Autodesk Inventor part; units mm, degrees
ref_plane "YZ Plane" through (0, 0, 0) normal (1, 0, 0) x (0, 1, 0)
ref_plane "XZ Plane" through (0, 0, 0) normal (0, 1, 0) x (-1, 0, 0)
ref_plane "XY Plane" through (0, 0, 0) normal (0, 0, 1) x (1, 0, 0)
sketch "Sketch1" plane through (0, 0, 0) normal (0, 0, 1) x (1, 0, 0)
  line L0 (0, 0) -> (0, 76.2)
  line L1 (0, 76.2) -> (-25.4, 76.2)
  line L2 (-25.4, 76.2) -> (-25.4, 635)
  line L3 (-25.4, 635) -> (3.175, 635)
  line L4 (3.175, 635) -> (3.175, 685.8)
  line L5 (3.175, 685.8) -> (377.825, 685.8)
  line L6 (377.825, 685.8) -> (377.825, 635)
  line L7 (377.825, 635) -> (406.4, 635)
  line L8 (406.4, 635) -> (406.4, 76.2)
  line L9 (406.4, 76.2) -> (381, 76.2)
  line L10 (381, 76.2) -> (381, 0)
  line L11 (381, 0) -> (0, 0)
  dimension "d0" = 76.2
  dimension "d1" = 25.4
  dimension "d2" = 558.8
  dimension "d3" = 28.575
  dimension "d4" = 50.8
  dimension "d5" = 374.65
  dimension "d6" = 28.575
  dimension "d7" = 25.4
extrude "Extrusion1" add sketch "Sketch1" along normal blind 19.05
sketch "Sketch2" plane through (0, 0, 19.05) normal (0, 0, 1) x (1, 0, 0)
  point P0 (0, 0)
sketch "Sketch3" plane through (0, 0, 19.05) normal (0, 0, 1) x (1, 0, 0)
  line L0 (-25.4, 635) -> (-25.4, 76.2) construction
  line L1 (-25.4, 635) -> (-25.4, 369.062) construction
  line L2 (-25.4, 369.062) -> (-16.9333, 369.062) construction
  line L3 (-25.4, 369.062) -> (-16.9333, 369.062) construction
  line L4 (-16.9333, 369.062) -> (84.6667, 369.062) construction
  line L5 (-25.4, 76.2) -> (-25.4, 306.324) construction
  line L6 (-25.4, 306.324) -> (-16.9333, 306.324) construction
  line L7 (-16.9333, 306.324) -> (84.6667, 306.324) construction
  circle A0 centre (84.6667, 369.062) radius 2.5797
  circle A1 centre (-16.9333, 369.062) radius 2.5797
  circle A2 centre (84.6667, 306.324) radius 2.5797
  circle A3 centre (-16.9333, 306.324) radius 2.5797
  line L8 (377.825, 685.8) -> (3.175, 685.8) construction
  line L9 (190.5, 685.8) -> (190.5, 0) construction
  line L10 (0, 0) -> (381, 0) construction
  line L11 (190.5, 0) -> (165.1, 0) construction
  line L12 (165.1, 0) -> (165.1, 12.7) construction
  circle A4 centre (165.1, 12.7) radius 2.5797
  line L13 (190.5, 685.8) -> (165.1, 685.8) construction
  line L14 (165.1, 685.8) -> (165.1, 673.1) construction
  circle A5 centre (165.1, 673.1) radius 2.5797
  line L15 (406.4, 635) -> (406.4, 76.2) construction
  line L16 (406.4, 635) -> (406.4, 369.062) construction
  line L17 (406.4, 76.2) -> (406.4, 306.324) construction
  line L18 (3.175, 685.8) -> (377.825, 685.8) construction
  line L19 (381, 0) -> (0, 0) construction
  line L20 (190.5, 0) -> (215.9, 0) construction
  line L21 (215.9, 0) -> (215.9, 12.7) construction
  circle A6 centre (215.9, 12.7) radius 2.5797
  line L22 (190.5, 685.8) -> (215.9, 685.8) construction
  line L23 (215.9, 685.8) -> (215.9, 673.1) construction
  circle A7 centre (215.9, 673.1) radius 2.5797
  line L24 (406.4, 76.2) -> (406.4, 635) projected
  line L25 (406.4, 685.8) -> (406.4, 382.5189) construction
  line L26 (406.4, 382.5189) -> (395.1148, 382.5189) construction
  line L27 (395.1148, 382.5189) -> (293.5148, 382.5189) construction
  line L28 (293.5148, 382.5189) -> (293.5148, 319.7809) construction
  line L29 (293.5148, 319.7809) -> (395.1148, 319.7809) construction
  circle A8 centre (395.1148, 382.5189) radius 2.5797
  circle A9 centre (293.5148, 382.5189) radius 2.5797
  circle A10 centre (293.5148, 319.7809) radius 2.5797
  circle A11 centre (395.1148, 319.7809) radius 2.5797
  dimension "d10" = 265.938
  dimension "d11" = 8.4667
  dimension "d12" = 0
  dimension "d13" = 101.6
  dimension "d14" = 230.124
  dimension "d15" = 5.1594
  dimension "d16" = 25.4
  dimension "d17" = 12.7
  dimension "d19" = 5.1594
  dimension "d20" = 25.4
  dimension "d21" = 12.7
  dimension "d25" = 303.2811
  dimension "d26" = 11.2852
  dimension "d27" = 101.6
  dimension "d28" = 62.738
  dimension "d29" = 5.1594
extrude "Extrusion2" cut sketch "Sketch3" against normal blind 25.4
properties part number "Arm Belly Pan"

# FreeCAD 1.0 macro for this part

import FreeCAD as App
import Part
import Sketcher
Q = App.Units.Quantity


def add_polygon(sketch, points):
    """Adds a closed chain of lines whose ends are joined by coincident constraints."""
    first, n = sketch.GeometryCount, len(points)
    for a, b in zip(points, points[1:] + points[:1]):
        sketch.addGeometry(Part.LineSegment(App.Vector(*a, 0), App.Vector(*b, 0)), False)
    for i in range(n):
        sketch.addConstraint(Sketcher.Constraint("Coincident", first + i, 2, first + (i + 1) % n, 1))

doc = App.newDocument("Part")
params = doc.addObject("Spreadsheet::Sheet", "Params")
for row, (alias, value) in enumerate([
    ("sketch1_width", "1 in"),
    ("sketch1_height", "3 in"),
    ("sketch1_height2", "22 in"),
    ("sketch1_height3", "2 in"),
    ("sketch1_width2", "14.75 in"),
    ("pad1_length", "0.75 in"),
    ("sketch2_diameter", "0.203126 in"),
    ("pocket1_length", "1 in"),
], start=1):
    params.set(f"A{row}", alias)
    params.set(f"B{row}", "=" + value)
    params.setAlias(f"B{row}", alias)

body = doc.addObject("PartDesign::Body", "Body")

sketch1 = body.newObject("Sketcher::SketchObject", "Sketch")
sketch1.AttachmentSupport = (doc.getObject("XY_Plane"), [""])
sketch1.MapMode = "FlatFace"
add_polygon(sketch1, [(0, 76), (0, 0), (381, 0), (381, 76), (406, 76), (406, 635), (378, 635), (378, 686), (3, 686), (3, 635), (-25, 635), (-25, 76)])
sketch1.addConstraint(Sketcher.Constraint("Vertical", 0))
sketch1.addConstraint(Sketcher.Constraint("Horizontal", 1))
sketch1.addConstraint(Sketcher.Constraint("Vertical", 2))
sketch1.addConstraint(Sketcher.Constraint("Horizontal", 3))
sketch1.addConstraint(Sketcher.Constraint("Vertical", 4))
sketch1.addConstraint(Sketcher.Constraint("Horizontal", 5))
sketch1.addConstraint(Sketcher.Constraint("Vertical", 6))
sketch1.addConstraint(Sketcher.Constraint("Horizontal", 7))
sketch1.addConstraint(Sketcher.Constraint("Vertical", 8))
sketch1.addConstraint(Sketcher.Constraint("Horizontal", 9))
sketch1.addConstraint(Sketcher.Constraint("Vertical", 10))
sketch1.addConstraint(Sketcher.Constraint("Horizontal", 11))
sketch1.addConstraint(Sketcher.Constraint("Coincident", 0, 2, -1, 1))
sketch1.addConstraint(Sketcher.Constraint("Horizontal", 5, 2, 8, 2))
sketch1.addConstraint(Sketcher.Constraint("Horizontal", 3, 2, 10, 2))
sketch1.addConstraint(Sketcher.Constraint("Equal", 5, 9))
sketch1.addConstraint(Sketcher.Constraint("Equal", 3, 11))
sketch1.addConstraint(Sketcher.Constraint("DistanceX", 3, 1, 3, 2, Q("1 in")))
sketch1.addConstraint(Sketcher.Constraint("DistanceY", 0, 2, 0, 1, Q("3 in")))
sketch1.addConstraint(Sketcher.Constraint("DistanceY", 4, 1, 4, 2, Q("22 in")))
sketch1.addConstraint(Sketcher.Constraint("DistanceY", 6, 1, 6, 2, Q("2 in")))
sketch1.addConstraint(Sketcher.Constraint("DistanceX", 7, 2, 7, 1, Q("14.75 in")))
sketch1.addConstraint(Sketcher.Constraint("DistanceX", 1, 1, 1, 2, Q("15 in")))
sketch1.setExpression("Constraints[29]", "Params.sketch1_width")
sketch1.setExpression("Constraints[30]", "Params.sketch1_height")
sketch1.setExpression("Constraints[31]", "Params.sketch1_height2")
sketch1.setExpression("Constraints[32]", "Params.sketch1_height3")
sketch1.setExpression("Constraints[33]", "Params.sketch1_width2")
pad1 = body.newObject("PartDesign::Pad", "Pad")
pad1.Profile = sketch1
pad1.setExpression("Length", "Params.pad1_length")

sketch2 = body.newObject("Sketcher::SketchObject", "Sketch001")
sketch2.AttachmentSupport = (doc.getObject("XY_Plane"), [""])
sketch2.MapMode = "FlatFace"
sketch2.AttachmentOffset = App.Placement(App.Vector(0, 0, 0.75 * 25.4), App.Rotation())
sketch2.addGeometry(Part.Circle(App.Vector(84.7, 369.1, 0), App.Vector(0, 0, 1), 2.6), False)
sketch2.addGeometry(Part.Circle(App.Vector(-16.9, 369.1, 0), App.Vector(0, 0, 1), 2.6), False)
sketch2.addGeometry(Part.Circle(App.Vector(84.7, 306.3, 0), App.Vector(0, 0, 1), 2.6), False)
sketch2.addGeometry(Part.Circle(App.Vector(-16.9, 306.3, 0), App.Vector(0, 0, 1), 2.6), False)
sketch2.addGeometry(Part.Circle(App.Vector(165.1, 12.7, 0), App.Vector(0, 0, 1), 2.6), False)
sketch2.addGeometry(Part.Circle(App.Vector(165.1, 673.1, 0), App.Vector(0, 0, 1), 2.6), False)
sketch2.addGeometry(Part.Circle(App.Vector(215.9, 12.7, 0), App.Vector(0, 0, 1), 2.6), False)
sketch2.addGeometry(Part.Circle(App.Vector(215.9, 673.1, 0), App.Vector(0, 0, 1), 2.6), False)
sketch2.addGeometry(Part.Circle(App.Vector(395.1, 382.5, 0), App.Vector(0, 0, 1), 2.6), False)
sketch2.addGeometry(Part.Circle(App.Vector(293.5, 382.5, 0), App.Vector(0, 0, 1), 2.6), False)
sketch2.addGeometry(Part.Circle(App.Vector(293.5, 319.8, 0), App.Vector(0, 0, 1), 2.6), False)
sketch2.addGeometry(Part.Circle(App.Vector(395.1, 319.8, 0), App.Vector(0, 0, 1), 2.6), False)
sketch2.addConstraint(Sketcher.Constraint("Equal", 0, 1))
sketch2.addConstraint(Sketcher.Constraint("Equal", 1, 2))
sketch2.addConstraint(Sketcher.Constraint("Equal", 2, 3))
sketch2.addConstraint(Sketcher.Constraint("Equal", 3, 4))
sketch2.addConstraint(Sketcher.Constraint("Equal", 4, 5))
sketch2.addConstraint(Sketcher.Constraint("Equal", 5, 6))
sketch2.addConstraint(Sketcher.Constraint("Equal", 6, 7))
sketch2.addConstraint(Sketcher.Constraint("Equal", 7, 8))
sketch2.addConstraint(Sketcher.Constraint("Equal", 8, 9))
sketch2.addConstraint(Sketcher.Constraint("Equal", 9, 10))
sketch2.addConstraint(Sketcher.Constraint("Equal", 10, 11))
sketch2.addConstraint(Sketcher.Constraint("Horizontal", 0, 3, 1, 3))
sketch2.addConstraint(Sketcher.Constraint("Horizontal", 2, 3, 3, 3))
sketch2.addConstraint(Sketcher.Constraint("Horizontal", 4, 3, 6, 3))
sketch2.addConstraint(Sketcher.Constraint("Horizontal", 5, 3, 7, 3))
sketch2.addConstraint(Sketcher.Constraint("Horizontal", 8, 3, 9, 3))
sketch2.addConstraint(Sketcher.Constraint("Horizontal", 10, 3, 11, 3))
sketch2.addConstraint(Sketcher.Constraint("Vertical", 0, 3, 2, 3))
sketch2.addConstraint(Sketcher.Constraint("Vertical", 1, 3, 3, 3))
sketch2.addConstraint(Sketcher.Constraint("Vertical", 4, 3, 5, 3))
sketch2.addConstraint(Sketcher.Constraint("Vertical", 6, 3, 7, 3))
sketch2.addConstraint(Sketcher.Constraint("Vertical", 9, 3, 10, 3))
sketch2.addConstraint(Sketcher.Constraint("Vertical", 8, 3, 11, 3))
sketch2.addConstraint(Sketcher.Constraint("Diameter", 0, Q("0.203126 in")))
sketch2.addConstraint(Sketcher.Constraint("DistanceX", 1, 3, 0, 3, Q("4 in")))
sketch2.addConstraint(Sketcher.Constraint("DistanceX", 9, 3, 8, 3, Q("4 in")))
sketch2.addConstraint(Sketcher.Constraint("DistanceY", -1, 1, 4, 3, Q("0.5 in")))
sketch2.addConstraint(Sketcher.Constraint("DistanceY", 2, 3, 0, 3, Q("2.47 in")))
sketch2.addConstraint(Sketcher.Constraint("DistanceY", 10, 3, 9, 3, Q("2.47 in")))
sketch2.addConstraint(Sketcher.Constraint("DistanceY", 4, 3, 5, 3, Q("26 in")))
sketch2.addConstraint(Sketcher.Constraint("DistanceX", 4, 3, 6, 3, Q("2 in")))
sketch2.addConstraint(Sketcher.Constraint("DistanceX", -1, 1, 4, 3, Q("6.5 in")))
sketch2.addConstraint(Sketcher.Constraint("DistanceY", -1, 1, 0, 3, Q("14.53 in")))
sketch2.addConstraint(Sketcher.Constraint("DistanceX", -1, 1, 8, 3, Q("15.5557 in")))
sketch2.addConstraint(Sketcher.Constraint("DistanceY", -1, 1, 8, 3, Q("15.0598 in")))
sketch2.addConstraint(Sketcher.Constraint("DistanceX", -1, 1, 0, 3, 84.6667))
sketch2.setExpression("Constraints[23]", "Params.sketch2_diameter")
pocket1 = body.newObject("PartDesign::Pocket", "Pocket")
pocket1.Profile = sketch2
pocket1.setExpression("Length", "Params.pocket1_length")

doc.recompute()
